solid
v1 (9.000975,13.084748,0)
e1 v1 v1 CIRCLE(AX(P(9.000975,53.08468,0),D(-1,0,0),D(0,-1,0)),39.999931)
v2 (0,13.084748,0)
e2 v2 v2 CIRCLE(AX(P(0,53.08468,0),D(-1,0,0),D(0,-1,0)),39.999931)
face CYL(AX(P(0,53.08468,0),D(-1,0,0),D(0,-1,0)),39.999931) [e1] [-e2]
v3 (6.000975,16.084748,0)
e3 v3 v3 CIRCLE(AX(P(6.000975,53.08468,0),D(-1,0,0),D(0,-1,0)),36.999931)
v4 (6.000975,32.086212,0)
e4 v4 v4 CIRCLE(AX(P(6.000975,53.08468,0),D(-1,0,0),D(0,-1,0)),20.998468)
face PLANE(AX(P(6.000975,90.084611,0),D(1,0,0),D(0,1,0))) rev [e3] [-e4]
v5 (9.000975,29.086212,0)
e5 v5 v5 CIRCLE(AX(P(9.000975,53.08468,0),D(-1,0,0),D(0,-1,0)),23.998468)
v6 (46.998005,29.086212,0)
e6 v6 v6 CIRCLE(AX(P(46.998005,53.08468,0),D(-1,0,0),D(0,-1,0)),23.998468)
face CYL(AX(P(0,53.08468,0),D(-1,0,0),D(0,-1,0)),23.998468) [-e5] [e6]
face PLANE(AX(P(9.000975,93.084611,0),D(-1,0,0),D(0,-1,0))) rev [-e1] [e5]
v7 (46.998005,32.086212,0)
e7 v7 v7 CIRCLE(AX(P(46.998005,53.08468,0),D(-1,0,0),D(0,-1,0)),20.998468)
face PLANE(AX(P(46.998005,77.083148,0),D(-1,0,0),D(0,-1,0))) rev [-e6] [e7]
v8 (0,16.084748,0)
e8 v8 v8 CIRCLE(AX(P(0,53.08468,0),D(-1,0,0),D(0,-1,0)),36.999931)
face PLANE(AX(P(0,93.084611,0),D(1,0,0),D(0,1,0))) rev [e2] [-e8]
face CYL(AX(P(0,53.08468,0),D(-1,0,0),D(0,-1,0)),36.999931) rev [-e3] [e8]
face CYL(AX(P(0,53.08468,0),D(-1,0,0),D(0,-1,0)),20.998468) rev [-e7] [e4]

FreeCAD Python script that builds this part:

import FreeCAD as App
import Part
import Sketcher

V = App.Vector
Q = App.Units.Quantity

doc = App.newDocument("Part")
params = doc.addObject("Spreadsheet::Sheet", "Params")
for row, (alias, value) in enumerate([
    ("sketch1_height", "3 mm"),
    ("revolution_angle", "360 deg"),
], start=1):
    params.set(f"A{row}", alias)
    params.set(f"B{row}", "=" + value)
    params.setAlias(f"B{row}", alias)

body = doc.addObject("PartDesign::Body", "Body")

# Sketch on XY plane
sketch1 = body.newObject("Sketcher::SketchObject", "Sketch")
sketch1.AttachmentSupport = (doc.getObject("XY_Plane"), [""])
sketch1.MapMode = "FlatFace"
sketch1.addGeometry(Part.LineSegment(V(0, 90.1, 0), V(6, 90.1, 0)), False)
sketch1.addGeometry(Part.LineSegment(V(6, 90.1, 0), V(6, 74.1, 0)), False)
sketch1.addGeometry(Part.LineSegment(V(6, 74.1, 0), V(47, 74.1, 0)), False)
sketch1.addGeometry(Part.LineSegment(V(47, 74.1, 0), V(47, 77.1, 0)), False)
sketch1.addGeometry(Part.LineSegment(V(47, 77.1, 0), V(9, 77.1, 0)), False)
sketch1.addGeometry(Part.LineSegment(V(9, 77.1, 0), V(9, 93.1, 0)), False)
sketch1.addGeometry(Part.LineSegment(V(9, 93.1, 0), V(0, 93.1, 0)), False)
sketch1.addGeometry(Part.LineSegment(V(0, 93.1, 0), V(0, 90.1, 0)), False)
sketch1.addGeometry(Part.LineSegment(V(0, 53.1, 0), V(47, 53.1, 0)), True)  # axis
sketch1.addConstraint(Sketcher.Constraint("Coincident", 0, 2, 1, 1))
sketch1.addConstraint(Sketcher.Constraint("Coincident", 1, 2, 2, 1))
sketch1.addConstraint(Sketcher.Constraint("Coincident", 2, 2, 3, 1))
sketch1.addConstraint(Sketcher.Constraint("Coincident", 3, 2, 4, 1))
sketch1.addConstraint(Sketcher.Constraint("Coincident", 4, 2, 5, 1))
sketch1.addConstraint(Sketcher.Constraint("Coincident", 5, 2, 6, 1))
sketch1.addConstraint(Sketcher.Constraint("Coincident", 6, 2, 7, 1))
sketch1.addConstraint(Sketcher.Constraint("Coincident", 7, 2, 0, 1))
sketch1.addConstraint(Sketcher.Constraint("Horizontal", 0))
sketch1.addConstraint(Sketcher.Constraint("Vertical", 1))
sketch1.addConstraint(Sketcher.Constraint("Horizontal", 2))
sketch1.addConstraint(Sketcher.Constraint("Vertical", 3))
sketch1.addConstraint(Sketcher.Constraint("Horizontal", 4))
sketch1.addConstraint(Sketcher.Constraint("Vertical", 5))
sketch1.addConstraint(Sketcher.Constraint("Horizontal", 6))
sketch1.addConstraint(Sketcher.Constraint("Vertical", 7))
sketch1.addConstraint(Sketcher.Constraint("Horizontal", 8))
sketch1.addConstraint(Sketcher.Constraint("PointOnObject", 6, 2, -2))
sketch1.addConstraint(Sketcher.Constraint("PointOnObject", 8, 1, -2))
sketch1.addConstraint(Sketcher.Constraint("Vertical", 3, 2, 8, 2))
sketch1.addConstraint(Sketcher.Constraint("Equal", 1, 5))
sketch1.addConstraint(Sketcher.Constraint("DistanceY", 3, 1, 3, 2, Q("3 mm")))
sketch1.addConstraint(Sketcher.Constraint("DistanceX", 1, 2, 4, 2, Q("3 mm")))
sketch1.addConstraint(Sketcher.Constraint("DistanceX", 2, 1, 2, 2, Q("40.997029 mm")))
sketch1.addConstraint(Sketcher.Constraint("DistanceX", 0, 1, 0, 2, Q("6.000975 mm")))
sketch1.addConstraint(Sketcher.Constraint("DistanceY", 1, 2, 1, 1, Q("16.001463 mm")))
sketch1.addConstraint(Sketcher.Constraint("DistanceY", -1, 1, 0, 2, Q("90.084611 mm")))
sketch1.addConstraint(Sketcher.Constraint("DistanceY", -1, 1, 8, 1, Q("53.08468 mm")))
sketch1.setExpression("Constraints[21]", "Params.sketch1_height")
revolution = body.newObject("PartDesign::Revolution", "Revolution")
revolution.Profile = sketch1
revolution.ReferenceAxis = (sketch1, ["Axis0"])
revolution.setExpression("Angle", "Params.revolution_angle")

doc.recompute()
